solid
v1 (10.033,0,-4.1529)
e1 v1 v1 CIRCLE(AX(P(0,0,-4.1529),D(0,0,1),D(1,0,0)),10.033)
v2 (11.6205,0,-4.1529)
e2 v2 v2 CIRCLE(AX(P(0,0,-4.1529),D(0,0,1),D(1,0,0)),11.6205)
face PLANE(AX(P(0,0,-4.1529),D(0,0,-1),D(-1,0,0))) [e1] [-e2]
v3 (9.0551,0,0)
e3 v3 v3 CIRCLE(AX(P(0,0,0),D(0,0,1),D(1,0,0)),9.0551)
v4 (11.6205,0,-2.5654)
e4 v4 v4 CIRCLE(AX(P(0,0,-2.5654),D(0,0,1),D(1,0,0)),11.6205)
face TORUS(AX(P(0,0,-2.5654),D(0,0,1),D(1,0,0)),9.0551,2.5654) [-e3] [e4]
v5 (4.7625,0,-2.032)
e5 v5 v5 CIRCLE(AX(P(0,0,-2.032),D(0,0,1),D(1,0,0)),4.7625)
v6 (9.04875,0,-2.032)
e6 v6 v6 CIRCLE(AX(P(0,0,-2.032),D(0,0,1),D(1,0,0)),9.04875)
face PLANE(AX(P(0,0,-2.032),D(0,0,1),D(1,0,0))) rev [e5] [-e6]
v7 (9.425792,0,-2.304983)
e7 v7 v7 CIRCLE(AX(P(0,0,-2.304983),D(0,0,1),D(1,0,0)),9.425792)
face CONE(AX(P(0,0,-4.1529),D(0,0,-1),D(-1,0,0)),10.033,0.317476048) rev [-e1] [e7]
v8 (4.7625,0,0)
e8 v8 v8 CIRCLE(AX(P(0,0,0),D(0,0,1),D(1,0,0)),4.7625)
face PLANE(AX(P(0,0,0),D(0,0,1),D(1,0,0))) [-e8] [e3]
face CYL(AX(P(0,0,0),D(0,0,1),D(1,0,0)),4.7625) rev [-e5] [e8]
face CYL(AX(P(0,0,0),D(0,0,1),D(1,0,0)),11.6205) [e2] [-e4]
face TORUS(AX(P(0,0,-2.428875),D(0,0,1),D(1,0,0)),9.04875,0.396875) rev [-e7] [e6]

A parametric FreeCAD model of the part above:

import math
import FreeCAD as App
import Part
import Sketcher
Q = App.Units.Quantity

doc = App.newDocument("Part")
body = doc.addObject("PartDesign::Body", "Body")

sketch1 = body.newObject("Sketcher::SketchObject", "Sketch")
sketch1.AttachmentSupport = (doc.getObject("XZ_Plane"), [""])
sketch1.MapMode = "FlatFace"
sketch1.addGeometry(Part.ArcOfCircle(Part.Circle(App.Vector(9.04875, -2.428875, 0), App.Vector(0, 0, 1), 0.396875), math.radians(18.190038), math.radians(90)), False)
sketch1.addGeometry(Part.LineSegment(App.Vector(9.04875, -2.032, 0), App.Vector(4.7625, -2.032, 0)), False)
sketch1.addGeometry(Part.LineSegment(App.Vector(4.7625, -2.032, 0), App.Vector(4.7625, 0, 0)), False)
sketch1.addGeometry(Part.LineSegment(App.Vector(4.7625, 0, 0), App.Vector(9.0551, 0, 0)), False)
sketch1.addGeometry(Part.ArcOfCircle(Part.Circle(App.Vector(9.0551, -2.5654, 0), App.Vector(0, 0, 1), 2.5654), math.radians(0), math.radians(90)), False)
sketch1.addGeometry(Part.LineSegment(App.Vector(11.6205, -2.5654, 0), App.Vector(11.6205, -4.1529, 0)), False)
sketch1.addGeometry(Part.LineSegment(App.Vector(11.6205, -4.1529, 0), App.Vector(10.033, -4.1529, 0)), False)
sketch1.addGeometry(Part.LineSegment(App.Vector(10.033, -4.1529, 0), App.Vector(9.425792, -2.304983, 0)), False)
sketch1.addConstraint(Sketcher.Constraint("Tangent", 0, 2, 1, 1))
sketch1.addConstraint(Sketcher.Constraint("Coincident", 1, 2, 2, 1))
sketch1.addConstraint(Sketcher.Constraint("Coincident", 2, 2, 3, 1))
sketch1.addConstraint(Sketcher.Constraint("Tangent", 3, 2, 4, 2))
sketch1.addConstraint(Sketcher.Constraint("Tangent", 4, 1, 5, 1))
sketch1.addConstraint(Sketcher.Constraint("Coincident", 5, 2, 6, 1))
sketch1.addConstraint(Sketcher.Constraint("Coincident", 6, 2, 7, 1))
sketch1.addConstraint(Sketcher.Constraint("Tangent", 7, 2, 0, 1))
sketch1.addConstraint(Sketcher.Constraint("Horizontal", 1))
sketch1.addConstraint(Sketcher.Constraint("Vertical", 2))
sketch1.addConstraint(Sketcher.Constraint("Horizontal", 3))
sketch1.addConstraint(Sketcher.Constraint("Vertical", 5))
sketch1.addConstraint(Sketcher.Constraint("Horizontal", 6))
sketch1.addConstraint(Sketcher.Constraint("PointOnObject", 2, 2, -1))
sketch1.addConstraint(Sketcher.Constraint("Equal", 6, 5))
sketch1.addConstraint(Sketcher.Constraint("Radius", 0, Q("0.015625 in")))
sketch1.addConstraint(Sketcher.Constraint("Radius", 4, Q("0.101 in")))
sketch1.addConstraint(Sketcher.Constraint("DistanceY", 2, 1, 2, 2, Q("0.08 in")))
sketch1.addConstraint(Sketcher.Constraint("DistanceX", 3, 1, 3, 2, Q("0.169 in")))
sketch1.addConstraint(Sketcher.Constraint("DistanceX", 6, 2, 6, 1, Q("0.0625 in")))
sketch1.addConstraint(Sketcher.Constraint("DistanceX", -1, 1, 1, 2, Q("0.1875 in")))
sketch1.addConstraint(Sketcher.Constraint("DistanceX", 1, 2, 1, 1, Q("4.28625 mm")))
revolution = body.newObject("PartDesign::Revolution", "Revolution")
revolution.Profile = sketch1
revolution.ReferenceAxis = (sketch1, ["V_Axis"])
revolution.Angle = 360

doc.recompute()
